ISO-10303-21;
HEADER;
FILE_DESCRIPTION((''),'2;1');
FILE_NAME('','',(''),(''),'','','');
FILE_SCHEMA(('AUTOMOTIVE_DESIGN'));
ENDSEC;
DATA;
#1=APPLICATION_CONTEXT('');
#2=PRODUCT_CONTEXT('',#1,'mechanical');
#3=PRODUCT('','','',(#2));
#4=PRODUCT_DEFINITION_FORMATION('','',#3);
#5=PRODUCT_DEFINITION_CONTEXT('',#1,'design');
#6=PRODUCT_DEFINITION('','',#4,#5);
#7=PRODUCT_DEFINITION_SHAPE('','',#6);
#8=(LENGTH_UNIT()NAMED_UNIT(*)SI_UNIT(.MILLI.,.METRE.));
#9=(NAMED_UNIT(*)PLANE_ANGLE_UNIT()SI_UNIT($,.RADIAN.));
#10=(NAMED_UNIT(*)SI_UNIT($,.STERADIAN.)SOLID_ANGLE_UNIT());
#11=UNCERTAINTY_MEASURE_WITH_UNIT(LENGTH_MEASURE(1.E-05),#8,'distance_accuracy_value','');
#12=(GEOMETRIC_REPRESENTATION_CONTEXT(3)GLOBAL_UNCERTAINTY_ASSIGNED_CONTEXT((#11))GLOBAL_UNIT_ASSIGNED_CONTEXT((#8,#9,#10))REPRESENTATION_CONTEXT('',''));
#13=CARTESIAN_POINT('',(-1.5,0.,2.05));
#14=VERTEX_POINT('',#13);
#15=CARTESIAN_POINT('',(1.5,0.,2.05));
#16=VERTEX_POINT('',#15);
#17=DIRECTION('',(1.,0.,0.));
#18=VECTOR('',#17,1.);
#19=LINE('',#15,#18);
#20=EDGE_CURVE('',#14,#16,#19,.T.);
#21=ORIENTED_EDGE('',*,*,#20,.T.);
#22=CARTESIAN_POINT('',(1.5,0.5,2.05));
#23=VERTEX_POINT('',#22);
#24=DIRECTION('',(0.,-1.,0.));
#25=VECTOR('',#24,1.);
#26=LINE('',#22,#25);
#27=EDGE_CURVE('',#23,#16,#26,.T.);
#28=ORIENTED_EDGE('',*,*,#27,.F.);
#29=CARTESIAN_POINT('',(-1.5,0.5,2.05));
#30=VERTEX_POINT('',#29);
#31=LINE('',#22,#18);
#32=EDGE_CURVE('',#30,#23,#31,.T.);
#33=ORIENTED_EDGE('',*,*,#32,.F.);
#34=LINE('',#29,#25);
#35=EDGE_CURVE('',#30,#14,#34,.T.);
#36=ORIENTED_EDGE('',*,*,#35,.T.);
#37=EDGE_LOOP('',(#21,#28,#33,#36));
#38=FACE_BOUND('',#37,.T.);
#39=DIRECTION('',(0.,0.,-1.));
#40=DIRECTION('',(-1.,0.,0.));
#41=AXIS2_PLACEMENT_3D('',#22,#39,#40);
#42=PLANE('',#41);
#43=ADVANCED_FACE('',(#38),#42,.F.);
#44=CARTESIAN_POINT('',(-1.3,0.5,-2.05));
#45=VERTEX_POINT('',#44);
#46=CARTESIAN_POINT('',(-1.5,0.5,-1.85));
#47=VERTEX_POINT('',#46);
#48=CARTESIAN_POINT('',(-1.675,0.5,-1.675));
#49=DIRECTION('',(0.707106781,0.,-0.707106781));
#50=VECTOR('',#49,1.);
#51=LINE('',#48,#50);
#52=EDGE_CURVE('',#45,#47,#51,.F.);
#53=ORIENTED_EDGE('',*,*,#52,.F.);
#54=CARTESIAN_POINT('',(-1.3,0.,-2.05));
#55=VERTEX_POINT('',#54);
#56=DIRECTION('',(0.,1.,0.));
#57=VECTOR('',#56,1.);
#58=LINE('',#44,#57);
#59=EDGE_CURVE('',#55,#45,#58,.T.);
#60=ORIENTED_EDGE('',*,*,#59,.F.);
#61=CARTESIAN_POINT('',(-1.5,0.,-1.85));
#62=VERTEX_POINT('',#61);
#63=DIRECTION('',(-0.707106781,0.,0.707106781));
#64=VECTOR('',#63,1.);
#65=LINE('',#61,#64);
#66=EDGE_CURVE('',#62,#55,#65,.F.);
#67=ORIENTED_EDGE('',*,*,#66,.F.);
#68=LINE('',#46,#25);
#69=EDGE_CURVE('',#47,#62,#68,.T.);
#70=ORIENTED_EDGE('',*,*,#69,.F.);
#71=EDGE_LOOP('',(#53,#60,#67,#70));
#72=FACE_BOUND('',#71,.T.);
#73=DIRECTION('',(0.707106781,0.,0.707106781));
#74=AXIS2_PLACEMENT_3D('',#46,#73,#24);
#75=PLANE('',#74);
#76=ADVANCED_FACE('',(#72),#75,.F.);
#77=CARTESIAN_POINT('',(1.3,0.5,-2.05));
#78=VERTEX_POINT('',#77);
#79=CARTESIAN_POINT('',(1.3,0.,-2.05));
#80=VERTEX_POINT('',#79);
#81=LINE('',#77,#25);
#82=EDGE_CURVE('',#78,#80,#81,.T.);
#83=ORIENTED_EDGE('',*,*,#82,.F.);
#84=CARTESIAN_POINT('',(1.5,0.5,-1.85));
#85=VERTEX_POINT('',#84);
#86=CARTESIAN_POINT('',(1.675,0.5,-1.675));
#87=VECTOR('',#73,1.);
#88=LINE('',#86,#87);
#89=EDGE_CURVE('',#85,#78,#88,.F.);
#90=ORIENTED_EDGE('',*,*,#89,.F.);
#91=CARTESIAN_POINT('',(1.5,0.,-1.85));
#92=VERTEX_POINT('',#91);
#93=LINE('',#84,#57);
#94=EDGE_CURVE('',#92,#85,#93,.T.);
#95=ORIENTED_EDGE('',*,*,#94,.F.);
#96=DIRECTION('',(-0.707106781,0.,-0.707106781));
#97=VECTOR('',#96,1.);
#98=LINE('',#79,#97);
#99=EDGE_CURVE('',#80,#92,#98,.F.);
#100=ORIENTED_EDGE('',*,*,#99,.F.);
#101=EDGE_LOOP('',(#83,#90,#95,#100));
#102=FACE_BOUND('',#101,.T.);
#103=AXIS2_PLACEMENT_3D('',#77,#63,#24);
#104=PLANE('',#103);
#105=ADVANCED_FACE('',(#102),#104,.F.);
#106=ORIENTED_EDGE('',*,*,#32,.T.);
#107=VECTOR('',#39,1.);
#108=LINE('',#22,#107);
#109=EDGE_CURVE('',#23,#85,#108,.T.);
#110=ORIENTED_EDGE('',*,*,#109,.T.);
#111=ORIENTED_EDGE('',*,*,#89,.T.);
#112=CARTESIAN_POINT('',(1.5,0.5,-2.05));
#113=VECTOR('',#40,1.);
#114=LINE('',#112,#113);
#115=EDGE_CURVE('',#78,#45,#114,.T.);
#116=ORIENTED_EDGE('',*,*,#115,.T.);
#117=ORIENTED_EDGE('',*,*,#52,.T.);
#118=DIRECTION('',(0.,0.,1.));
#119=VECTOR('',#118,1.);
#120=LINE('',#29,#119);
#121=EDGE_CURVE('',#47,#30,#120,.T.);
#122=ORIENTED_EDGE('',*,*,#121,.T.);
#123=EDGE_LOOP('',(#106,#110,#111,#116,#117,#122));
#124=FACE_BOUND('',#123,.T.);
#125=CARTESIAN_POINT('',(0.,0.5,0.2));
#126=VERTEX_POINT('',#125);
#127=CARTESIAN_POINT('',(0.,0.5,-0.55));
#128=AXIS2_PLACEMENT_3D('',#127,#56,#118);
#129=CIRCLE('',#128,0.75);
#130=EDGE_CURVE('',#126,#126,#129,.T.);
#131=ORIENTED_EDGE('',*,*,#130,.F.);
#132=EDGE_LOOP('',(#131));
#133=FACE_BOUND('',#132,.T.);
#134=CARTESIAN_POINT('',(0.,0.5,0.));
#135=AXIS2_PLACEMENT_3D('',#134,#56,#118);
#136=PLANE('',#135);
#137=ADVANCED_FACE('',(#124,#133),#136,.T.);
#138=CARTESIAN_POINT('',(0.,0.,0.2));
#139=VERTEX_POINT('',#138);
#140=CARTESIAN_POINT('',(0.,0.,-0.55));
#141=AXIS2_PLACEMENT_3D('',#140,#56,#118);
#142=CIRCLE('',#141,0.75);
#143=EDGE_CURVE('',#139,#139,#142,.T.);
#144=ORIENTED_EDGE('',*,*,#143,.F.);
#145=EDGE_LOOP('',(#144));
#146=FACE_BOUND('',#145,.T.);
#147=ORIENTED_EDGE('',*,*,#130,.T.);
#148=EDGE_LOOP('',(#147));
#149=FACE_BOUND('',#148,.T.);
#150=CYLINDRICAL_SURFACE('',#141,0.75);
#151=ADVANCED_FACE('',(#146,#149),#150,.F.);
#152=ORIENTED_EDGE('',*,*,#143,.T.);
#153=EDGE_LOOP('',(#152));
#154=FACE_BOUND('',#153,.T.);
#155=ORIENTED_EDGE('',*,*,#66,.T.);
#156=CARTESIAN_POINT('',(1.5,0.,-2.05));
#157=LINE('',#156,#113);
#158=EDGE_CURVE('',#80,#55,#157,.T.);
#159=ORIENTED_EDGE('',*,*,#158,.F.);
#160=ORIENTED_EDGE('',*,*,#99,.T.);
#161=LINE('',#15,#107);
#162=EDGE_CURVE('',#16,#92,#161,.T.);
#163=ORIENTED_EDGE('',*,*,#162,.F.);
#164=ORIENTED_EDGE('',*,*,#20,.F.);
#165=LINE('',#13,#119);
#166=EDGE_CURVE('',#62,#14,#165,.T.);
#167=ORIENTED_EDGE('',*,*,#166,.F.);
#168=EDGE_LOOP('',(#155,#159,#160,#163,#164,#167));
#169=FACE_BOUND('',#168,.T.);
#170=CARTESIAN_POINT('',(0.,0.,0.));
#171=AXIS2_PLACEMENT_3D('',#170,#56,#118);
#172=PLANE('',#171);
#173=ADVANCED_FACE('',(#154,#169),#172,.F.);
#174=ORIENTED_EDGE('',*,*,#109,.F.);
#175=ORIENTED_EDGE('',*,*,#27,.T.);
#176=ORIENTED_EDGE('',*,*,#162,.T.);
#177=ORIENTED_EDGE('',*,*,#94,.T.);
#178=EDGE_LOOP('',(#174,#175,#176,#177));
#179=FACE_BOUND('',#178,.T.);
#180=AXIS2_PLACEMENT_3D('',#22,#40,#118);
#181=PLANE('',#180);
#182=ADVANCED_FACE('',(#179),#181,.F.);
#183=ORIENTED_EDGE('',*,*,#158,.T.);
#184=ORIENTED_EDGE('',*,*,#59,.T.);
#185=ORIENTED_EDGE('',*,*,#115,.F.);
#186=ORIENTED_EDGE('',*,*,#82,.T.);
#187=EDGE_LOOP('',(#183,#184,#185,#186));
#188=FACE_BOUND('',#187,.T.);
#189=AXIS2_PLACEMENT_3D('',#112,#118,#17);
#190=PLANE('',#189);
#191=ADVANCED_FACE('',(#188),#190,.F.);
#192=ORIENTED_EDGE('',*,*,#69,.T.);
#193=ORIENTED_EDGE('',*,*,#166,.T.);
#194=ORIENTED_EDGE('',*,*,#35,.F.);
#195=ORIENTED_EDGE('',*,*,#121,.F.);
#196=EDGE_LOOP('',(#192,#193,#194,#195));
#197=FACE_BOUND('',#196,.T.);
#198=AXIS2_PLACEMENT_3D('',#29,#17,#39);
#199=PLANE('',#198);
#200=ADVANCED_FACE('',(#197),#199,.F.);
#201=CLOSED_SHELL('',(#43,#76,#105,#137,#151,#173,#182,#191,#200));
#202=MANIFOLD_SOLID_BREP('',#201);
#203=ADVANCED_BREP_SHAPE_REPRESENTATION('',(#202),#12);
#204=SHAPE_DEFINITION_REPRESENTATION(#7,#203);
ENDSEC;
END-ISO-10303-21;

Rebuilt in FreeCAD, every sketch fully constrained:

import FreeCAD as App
import Part
import Sketcher

V = App.Vector
Q = App.Units.Quantity


def edges_at(feature, points):
    """Names of the edges that pass closest to the given points."""
    edges = feature.Shape.Edges
    near = lambda p: min(range(len(edges)), key=lambda i: edges[i].distToShape(Part.Vertex(*p))[0])
    return sorted({f"Edge{near(p) + 1}" for p in points})


def add_polygon(sketch, points):
    """Adds a closed chain of lines whose ends are joined by coincident constraints."""
    first, n = sketch.GeometryCount, len(points)
    for a, b in zip(points, points[1:] + points[:1]):
        sketch.addGeometry(Part.LineSegment(App.Vector(*a, 0), App.Vector(*b, 0)), False)
    for i in range(n):
        sketch.addConstraint(Sketcher.Constraint("Coincident", first + i, 2, first + (i + 1) % n, 1))

doc = App.newDocument("Part")
params = doc.addObject("Spreadsheet::Sheet", "Params")
for row, (alias, value) in enumerate([
    ("sketch1_width", "3 mm"),
    ("sketch1_height", "4.1 mm"),
    ("pad1_length", "0.5 mm"),
    ("chamfer_size", "0.2 mm"),
    ("sketch2_diameter", "1.5 mm"),
    ("pocket1_length", "0.5 mm"),
], start=1):
    params.set(f"A{row}", alias)
    params.set(f"B{row}", "=" + value)
    params.setAlias(f"B{row}", alias)

body = doc.addObject("PartDesign::Body", "Body")

# Sketch on XZ plane
sketch1 = body.newObject("Sketcher::SketchObject", "Sketch")
sketch1.AttachmentSupport = (doc.getObject("XZ_Plane"), [""])
sketch1.MapMode = "FlatFace"
add_polygon(sketch1, [(-1.5, -2.05), (-1.5, 2.05), (1.5, 2.05), (1.5, -2.05)])  # lines 0-3
sketch1.addConstraint([
    Sketcher.Constraint("Vertical", 0),
    Sketcher.Constraint("Horizontal", 1),
    Sketcher.Constraint("Vertical", 2),
    Sketcher.Constraint("Horizontal", 3),
    Sketcher.Constraint("Symmetric", 0, 2, 2, 2, -1, 1),
    Sketcher.Constraint("DistanceX", 1, 1, 1, 2, Q("3 mm")),
    Sketcher.Constraint("DistanceY", 0, 1, 0, 2, Q("4.1 mm")),
])
sketch1.setExpression("Constraints[9]", "Params.sketch1_width")
sketch1.setExpression("Constraints[10]", "Params.sketch1_height")
pad1 = body.newObject("PartDesign::Pad", "Pad")
pad1.Profile = sketch1
pad1.setExpression("Length", "Params.pad1_length")
pad1.Reversed = True
doc.recompute()

chamfer = body.newObject("PartDesign::Chamfer", "Chamfer")
chamfer.Base = (pad1, edges_at(pad1, [(-1.5, 0.25, -2.05), (1.5, 0.25, -2.05)]))
chamfer.setExpression("Size", "Params.chamfer_size")

# Sketch on XZ plane
sketch2 = body.newObject("Sketcher::SketchObject", "Sketch001")
sketch2.AttachmentSupport = (doc.getObject("XZ_Plane"), [""])
sketch2.MapMode = "FlatFace"
sketch2.AttachmentOffset = App.Placement(V(0, 0, -0.5), App.Rotation())
sketch2.addGeometry(Part.Circle(V(0, -0.55, 0), V(0, 0, 1), 0.75), False)
sketch2.addConstraint([
    Sketcher.Constraint("PointOnObject", 0, 3, -2),
    Sketcher.Constraint("Diameter", 0, Q("1.5 mm")),
    Sketcher.Constraint("DistanceY", 0, 3, -1, 1, Q("0.55 mm")),
])
sketch2.setExpression("Constraints[1]", "Params.sketch2_diameter")
pocket1 = body.newObject("PartDesign::Pocket", "Pocket")
pocket1.Profile = sketch2
pocket1.setExpression("Length", "Params.pocket1_length")
pocket1.Reversed = True

doc.recompute()
